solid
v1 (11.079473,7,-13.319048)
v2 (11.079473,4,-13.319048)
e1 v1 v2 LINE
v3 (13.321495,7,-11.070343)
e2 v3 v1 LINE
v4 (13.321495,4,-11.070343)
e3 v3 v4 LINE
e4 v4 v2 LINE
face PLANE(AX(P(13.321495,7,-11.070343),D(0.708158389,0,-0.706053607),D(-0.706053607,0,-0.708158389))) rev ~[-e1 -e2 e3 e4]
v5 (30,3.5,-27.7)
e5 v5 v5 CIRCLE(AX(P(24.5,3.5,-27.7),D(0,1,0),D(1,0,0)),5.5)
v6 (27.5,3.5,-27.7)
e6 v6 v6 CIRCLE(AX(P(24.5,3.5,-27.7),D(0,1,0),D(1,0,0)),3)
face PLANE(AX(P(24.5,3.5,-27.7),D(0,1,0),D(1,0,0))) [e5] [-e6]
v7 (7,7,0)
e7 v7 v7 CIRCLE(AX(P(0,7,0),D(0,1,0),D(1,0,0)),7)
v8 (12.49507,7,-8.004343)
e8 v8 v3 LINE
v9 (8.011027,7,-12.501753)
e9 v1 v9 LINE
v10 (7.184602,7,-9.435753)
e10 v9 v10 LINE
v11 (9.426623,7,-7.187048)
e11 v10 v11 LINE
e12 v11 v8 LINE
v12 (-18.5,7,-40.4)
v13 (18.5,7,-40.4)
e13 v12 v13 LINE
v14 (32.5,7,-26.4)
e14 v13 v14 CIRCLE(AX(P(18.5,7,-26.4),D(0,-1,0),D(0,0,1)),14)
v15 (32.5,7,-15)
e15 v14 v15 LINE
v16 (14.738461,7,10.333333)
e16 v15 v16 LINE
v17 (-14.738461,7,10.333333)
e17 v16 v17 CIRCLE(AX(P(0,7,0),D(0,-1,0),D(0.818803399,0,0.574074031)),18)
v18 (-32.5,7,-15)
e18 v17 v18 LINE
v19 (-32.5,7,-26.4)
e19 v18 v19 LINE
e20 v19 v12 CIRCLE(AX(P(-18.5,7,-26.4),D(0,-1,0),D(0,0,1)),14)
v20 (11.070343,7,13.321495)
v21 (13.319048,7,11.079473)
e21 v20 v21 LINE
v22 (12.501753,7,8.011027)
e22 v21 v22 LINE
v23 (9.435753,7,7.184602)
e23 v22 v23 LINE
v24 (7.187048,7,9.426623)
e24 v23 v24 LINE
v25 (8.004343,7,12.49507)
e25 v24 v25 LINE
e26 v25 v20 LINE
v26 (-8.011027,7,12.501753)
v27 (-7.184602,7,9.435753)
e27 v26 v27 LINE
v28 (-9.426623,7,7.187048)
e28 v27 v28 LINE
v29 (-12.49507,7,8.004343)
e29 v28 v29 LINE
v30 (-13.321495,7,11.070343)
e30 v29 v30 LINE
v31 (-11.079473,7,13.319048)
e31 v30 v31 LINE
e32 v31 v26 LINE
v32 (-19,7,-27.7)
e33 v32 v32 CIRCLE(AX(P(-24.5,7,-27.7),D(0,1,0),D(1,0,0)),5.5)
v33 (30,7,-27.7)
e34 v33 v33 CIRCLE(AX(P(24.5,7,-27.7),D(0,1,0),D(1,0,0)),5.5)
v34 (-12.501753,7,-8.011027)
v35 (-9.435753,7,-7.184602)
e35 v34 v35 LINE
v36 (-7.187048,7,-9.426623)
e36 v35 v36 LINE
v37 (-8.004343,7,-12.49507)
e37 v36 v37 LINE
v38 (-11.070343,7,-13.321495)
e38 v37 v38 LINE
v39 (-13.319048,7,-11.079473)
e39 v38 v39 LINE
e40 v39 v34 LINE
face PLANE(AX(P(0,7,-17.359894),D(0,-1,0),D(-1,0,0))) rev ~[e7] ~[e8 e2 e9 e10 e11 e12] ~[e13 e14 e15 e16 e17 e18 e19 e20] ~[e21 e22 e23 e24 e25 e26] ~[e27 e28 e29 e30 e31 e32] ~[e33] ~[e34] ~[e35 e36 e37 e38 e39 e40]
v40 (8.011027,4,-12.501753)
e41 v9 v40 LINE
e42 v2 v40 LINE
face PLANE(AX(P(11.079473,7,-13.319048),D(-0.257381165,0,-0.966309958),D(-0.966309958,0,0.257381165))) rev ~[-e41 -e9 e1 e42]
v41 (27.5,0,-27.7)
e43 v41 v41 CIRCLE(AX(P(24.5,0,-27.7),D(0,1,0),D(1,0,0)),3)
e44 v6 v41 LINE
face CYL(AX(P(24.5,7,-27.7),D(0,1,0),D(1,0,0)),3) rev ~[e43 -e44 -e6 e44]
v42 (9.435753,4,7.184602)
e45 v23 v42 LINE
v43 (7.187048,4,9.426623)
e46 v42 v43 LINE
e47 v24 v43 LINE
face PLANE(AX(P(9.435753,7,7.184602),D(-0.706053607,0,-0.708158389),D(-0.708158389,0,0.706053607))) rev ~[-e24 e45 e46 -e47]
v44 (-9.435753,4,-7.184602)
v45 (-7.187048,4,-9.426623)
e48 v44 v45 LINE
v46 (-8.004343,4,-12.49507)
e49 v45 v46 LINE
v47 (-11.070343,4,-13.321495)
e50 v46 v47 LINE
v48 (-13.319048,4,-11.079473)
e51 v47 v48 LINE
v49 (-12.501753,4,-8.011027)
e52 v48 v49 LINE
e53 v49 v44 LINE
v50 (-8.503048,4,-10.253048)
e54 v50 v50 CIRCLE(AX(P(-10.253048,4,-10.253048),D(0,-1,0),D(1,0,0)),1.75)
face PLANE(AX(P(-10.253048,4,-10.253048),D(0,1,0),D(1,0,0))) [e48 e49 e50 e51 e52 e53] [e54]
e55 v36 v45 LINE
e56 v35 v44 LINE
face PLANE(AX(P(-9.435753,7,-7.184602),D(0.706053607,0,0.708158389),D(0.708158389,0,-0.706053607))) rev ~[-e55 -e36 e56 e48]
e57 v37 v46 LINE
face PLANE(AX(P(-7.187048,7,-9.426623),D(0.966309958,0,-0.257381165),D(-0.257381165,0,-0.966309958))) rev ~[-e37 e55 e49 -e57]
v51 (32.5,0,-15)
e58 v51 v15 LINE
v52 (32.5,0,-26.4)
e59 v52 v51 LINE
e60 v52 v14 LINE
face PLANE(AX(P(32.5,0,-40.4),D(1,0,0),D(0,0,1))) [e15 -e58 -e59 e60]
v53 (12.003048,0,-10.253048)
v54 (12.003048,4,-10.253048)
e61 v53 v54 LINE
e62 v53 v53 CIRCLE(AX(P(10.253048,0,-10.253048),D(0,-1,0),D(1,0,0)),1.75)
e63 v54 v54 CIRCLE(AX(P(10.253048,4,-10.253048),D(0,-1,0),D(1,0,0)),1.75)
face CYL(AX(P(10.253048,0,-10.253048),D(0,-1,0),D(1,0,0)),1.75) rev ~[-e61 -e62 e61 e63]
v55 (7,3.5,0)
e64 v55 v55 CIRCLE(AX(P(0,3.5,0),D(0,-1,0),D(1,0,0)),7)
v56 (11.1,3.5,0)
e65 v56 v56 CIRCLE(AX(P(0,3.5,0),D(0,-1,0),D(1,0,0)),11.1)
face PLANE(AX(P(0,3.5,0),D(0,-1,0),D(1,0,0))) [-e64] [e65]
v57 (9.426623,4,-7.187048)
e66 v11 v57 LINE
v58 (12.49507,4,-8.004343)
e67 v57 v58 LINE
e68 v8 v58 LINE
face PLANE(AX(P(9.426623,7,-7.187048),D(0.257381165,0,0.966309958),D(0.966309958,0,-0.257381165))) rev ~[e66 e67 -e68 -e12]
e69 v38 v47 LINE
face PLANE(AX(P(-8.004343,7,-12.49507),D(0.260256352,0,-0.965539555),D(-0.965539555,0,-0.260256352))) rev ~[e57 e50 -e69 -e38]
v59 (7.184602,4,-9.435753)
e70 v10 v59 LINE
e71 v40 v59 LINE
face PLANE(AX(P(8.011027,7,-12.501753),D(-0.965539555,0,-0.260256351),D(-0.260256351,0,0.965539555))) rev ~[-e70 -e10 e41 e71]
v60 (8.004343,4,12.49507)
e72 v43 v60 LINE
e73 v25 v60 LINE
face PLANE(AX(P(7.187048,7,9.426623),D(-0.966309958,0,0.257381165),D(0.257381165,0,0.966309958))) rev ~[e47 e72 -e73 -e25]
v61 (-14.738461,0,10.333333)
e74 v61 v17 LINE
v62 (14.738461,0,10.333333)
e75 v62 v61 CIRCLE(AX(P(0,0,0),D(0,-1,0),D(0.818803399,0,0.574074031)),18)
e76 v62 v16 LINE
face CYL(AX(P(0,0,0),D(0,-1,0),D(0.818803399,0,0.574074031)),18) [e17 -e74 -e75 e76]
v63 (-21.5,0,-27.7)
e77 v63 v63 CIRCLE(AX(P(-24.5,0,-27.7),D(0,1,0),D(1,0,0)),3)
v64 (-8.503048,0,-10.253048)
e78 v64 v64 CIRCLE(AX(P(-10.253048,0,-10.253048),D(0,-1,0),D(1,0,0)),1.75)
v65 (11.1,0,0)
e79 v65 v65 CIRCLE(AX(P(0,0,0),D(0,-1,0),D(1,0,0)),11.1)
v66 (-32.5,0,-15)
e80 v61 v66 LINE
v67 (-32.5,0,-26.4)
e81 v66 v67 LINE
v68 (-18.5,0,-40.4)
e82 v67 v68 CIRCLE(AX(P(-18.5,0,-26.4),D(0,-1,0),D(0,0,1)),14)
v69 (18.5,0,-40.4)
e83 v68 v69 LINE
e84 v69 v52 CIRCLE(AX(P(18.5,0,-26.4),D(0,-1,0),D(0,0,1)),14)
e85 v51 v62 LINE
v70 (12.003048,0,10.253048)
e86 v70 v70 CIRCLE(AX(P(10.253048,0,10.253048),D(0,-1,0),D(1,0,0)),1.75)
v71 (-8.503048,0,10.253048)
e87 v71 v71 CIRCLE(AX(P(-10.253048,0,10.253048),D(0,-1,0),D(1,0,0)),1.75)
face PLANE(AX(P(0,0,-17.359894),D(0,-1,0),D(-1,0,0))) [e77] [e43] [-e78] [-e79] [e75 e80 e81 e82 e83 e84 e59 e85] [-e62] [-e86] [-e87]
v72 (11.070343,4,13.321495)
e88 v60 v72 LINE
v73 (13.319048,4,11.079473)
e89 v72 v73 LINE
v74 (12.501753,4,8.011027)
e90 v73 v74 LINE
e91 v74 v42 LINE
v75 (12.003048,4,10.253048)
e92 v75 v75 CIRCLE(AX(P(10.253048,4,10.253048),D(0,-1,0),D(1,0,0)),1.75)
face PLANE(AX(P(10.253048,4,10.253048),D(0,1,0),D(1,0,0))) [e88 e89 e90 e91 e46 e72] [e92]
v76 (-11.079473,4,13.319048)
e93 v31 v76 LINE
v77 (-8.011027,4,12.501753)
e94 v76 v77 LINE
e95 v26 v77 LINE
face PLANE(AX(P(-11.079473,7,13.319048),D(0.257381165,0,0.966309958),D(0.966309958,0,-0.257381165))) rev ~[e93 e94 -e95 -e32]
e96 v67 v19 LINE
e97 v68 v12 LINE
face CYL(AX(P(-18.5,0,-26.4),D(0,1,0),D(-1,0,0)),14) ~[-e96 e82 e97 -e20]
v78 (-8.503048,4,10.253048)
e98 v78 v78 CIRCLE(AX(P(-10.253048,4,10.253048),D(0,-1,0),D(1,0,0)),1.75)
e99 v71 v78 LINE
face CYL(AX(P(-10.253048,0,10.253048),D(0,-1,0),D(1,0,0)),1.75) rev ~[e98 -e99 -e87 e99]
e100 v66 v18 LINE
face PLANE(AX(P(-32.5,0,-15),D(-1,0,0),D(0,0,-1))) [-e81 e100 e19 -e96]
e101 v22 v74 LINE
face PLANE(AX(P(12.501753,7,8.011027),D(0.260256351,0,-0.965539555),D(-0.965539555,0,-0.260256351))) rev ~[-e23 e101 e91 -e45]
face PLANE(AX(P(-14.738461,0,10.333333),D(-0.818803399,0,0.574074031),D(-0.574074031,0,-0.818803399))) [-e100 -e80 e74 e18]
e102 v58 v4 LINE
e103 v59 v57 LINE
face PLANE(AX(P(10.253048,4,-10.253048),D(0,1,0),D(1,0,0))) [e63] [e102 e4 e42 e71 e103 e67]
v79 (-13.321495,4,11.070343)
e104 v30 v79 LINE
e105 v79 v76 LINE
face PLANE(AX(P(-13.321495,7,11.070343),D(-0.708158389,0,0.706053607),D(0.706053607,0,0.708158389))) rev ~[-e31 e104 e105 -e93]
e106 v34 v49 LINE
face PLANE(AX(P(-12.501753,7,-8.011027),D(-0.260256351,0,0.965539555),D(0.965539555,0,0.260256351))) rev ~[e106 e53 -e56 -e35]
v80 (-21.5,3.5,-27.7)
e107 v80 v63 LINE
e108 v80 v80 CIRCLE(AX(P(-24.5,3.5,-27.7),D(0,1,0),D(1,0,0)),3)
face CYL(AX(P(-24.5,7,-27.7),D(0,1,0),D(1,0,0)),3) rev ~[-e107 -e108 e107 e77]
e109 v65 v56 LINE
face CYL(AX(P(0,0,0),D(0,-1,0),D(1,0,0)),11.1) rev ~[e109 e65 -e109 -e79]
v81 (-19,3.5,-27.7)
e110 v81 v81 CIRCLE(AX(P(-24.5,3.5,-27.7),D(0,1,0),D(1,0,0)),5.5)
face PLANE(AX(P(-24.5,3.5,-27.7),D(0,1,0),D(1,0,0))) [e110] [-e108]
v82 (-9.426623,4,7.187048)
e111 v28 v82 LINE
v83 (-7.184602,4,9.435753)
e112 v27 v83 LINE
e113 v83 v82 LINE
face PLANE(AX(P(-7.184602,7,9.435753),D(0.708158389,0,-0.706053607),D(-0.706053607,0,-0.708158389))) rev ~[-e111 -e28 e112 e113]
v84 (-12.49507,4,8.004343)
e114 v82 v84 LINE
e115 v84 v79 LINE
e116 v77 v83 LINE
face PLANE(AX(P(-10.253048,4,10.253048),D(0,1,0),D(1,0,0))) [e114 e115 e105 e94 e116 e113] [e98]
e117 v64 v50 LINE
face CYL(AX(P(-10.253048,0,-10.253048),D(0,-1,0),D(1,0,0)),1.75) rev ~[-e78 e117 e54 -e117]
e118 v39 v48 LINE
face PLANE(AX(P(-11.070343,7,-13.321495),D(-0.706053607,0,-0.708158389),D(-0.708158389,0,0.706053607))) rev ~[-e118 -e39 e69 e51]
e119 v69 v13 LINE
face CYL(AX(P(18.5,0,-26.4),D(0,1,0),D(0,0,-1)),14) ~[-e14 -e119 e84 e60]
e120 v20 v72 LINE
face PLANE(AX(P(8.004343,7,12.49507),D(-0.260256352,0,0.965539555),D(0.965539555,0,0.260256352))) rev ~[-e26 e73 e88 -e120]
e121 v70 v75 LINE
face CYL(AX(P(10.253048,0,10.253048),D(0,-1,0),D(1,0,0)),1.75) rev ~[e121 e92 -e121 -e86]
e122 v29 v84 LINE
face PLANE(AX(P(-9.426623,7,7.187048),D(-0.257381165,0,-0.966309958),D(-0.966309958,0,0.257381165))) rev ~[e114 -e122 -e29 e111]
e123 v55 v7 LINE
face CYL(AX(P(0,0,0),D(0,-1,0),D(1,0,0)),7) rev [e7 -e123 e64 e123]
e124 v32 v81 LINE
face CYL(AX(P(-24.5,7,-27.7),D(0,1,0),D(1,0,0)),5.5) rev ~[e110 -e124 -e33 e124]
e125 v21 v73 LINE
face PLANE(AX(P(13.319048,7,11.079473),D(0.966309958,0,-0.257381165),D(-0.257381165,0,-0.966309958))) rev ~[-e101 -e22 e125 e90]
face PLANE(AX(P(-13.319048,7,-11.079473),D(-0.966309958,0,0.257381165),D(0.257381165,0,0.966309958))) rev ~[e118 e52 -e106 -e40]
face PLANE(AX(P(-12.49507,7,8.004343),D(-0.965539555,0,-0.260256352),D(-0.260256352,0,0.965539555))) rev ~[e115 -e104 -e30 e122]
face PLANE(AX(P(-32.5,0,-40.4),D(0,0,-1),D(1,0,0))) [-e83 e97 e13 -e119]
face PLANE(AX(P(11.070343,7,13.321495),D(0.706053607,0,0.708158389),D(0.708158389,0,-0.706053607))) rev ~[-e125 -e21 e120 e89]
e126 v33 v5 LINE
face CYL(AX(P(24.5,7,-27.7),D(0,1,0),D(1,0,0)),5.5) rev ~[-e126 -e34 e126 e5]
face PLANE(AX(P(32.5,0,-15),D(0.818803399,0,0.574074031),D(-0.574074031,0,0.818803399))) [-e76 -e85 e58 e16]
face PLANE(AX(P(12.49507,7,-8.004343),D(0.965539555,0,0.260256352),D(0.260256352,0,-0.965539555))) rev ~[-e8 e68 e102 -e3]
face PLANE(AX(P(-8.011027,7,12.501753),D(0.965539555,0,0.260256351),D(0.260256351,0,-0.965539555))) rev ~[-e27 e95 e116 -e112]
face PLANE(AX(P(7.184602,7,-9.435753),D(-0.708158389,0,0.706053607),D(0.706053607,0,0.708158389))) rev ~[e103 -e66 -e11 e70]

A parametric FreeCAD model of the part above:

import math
import FreeCAD as App
import Part
import Sketcher

V = App.Vector
Q = App.Units.Quantity


def edges_at(feature, points):
    """Names of the edges that pass closest to the given points."""
    edges = feature.Shape.Edges
    near = lambda p: min(range(len(edges)), key=lambda i: edges[i].distToShape(Part.Vertex(*p))[0])
    return sorted({f"Edge{near(p) + 1}" for p in points})


def add_polygon(sketch, points):
    """Adds a closed chain of lines whose ends are joined by coincident constraints."""
    first, n = sketch.GeometryCount, len(points)
    for a, b in zip(points, points[1:] + points[:1]):
        sketch.addGeometry(Part.LineSegment(App.Vector(*a, 0), App.Vector(*b, 0)), False)
    for i in range(n):
        sketch.addConstraint(Sketcher.Constraint("Coincident", first + i, 2, first + (i + 1) % n, 1))

doc = App.newDocument("Part")
params = doc.addObject("Spreadsheet::Sheet", "Params")
for row, (alias, value) in enumerate([
    ("sketch1_diameter", "14 mm"),
    ("sketch1_radius", "18 mm"),
    ("sketch1_width", "65 mm"),
    ("sketch1_height", "25.4 mm"),
    ("pad1_length", "7 mm"),
    ("sketch2_diameter", "22.2 mm"),
    ("pocket1_length", "3.5 mm"),
    ("sketch3_diameter", "11 mm"),
    ("sketch3_diameter2", "6 mm"),
    ("pocket2_length", "3.5 mm"),
    ("sketch4_diameter", "6 mm"),
    ("sketch5_diameter", "3.5 mm"),
    ("pocket5_length", "3 mm"),
    ("fillet_radius", "14 mm"),
], start=1):
    params.set(f"A{row}", alias)
    params.set(f"B{row}", "=" + value)
    params.setAlias(f"B{row}", alias)

body = doc.addObject("PartDesign::Body", "Body")

# Sketch on XZ plane
sketch1 = body.newObject("Sketcher::SketchObject", "Sketch")
sketch1.AttachmentSupport = (doc.getObject("XZ_Plane"), [""])
sketch1.MapMode = "FlatFace"
sketch1.addGeometry([
    Part.LineSegment(V(-32, -40, 0), V(-32, -15, 0)),  # 0
    Part.LineSegment(V(-32, -15, 0), V(-15, 10, 0)),  # 1
    Part.ArcOfCircle(Part.Circle(V(0, 0, 0), V(0, 0, 1), 18), math.radians(35), math.radians(145)),  # 2
    Part.LineSegment(V(15, 10, 0), V(32, -15, 0)),  # 3
    Part.LineSegment(V(32, -15, 0), V(32, -40, 0)),  # 4
    Part.LineSegment(V(32, -40, 0), V(-32, -40, 0)),  # 5
    Part.Circle(V(0, 0, 0), V(0, 0, 1), 7),  # 6
], False)
sketch1.addConstraint([
    Sketcher.Constraint("Coincident", 0, 2, 1, 1),
    Sketcher.Constraint("Tangent", 1, 2, 2, 2),
    Sketcher.Constraint("Tangent", 2, 1, 3, 1),
    Sketcher.Constraint("Coincident", 3, 2, 4, 1),
    Sketcher.Constraint("Coincident", 4, 2, 5, 1),
    Sketcher.Constraint("Coincident", 5, 2, 0, 1),
    Sketcher.Constraint("Vertical", 0),
    Sketcher.Constraint("Vertical", 4),
    Sketcher.Constraint("Horizontal", 5),
    Sketcher.Constraint("Coincident", 2, 3, -1, 1),
    Sketcher.Constraint("Coincident", 6, 3, -1, 1),
    Sketcher.Constraint("Symmetric", 0, 2, 3, 2, -2),
    Sketcher.Constraint("Diameter", 6, Q("14 mm")),
    Sketcher.Constraint("Radius", 2, Q("18 mm")),
    Sketcher.Constraint("DistanceX", 5, 2, 5, 1, Q("65 mm")),
    Sketcher.Constraint("DistanceY", 0, 1, 0, 2, Q("25.4 mm")),
    Sketcher.Constraint("DistanceY", 0, 2, -1, 1, Q("15 mm")),
])
sketch1.setExpression("Constraints[12]", "Params.sketch1_diameter")
sketch1.setExpression("Constraints[13]", "Params.sketch1_radius")
sketch1.setExpression("Constraints[14]", "Params.sketch1_width")
sketch1.setExpression("Constraints[15]", "Params.sketch1_height")
pad1 = body.newObject("PartDesign::Pad", "Pad")
pad1.Profile = sketch1
pad1.setExpression("Length", "Params.pad1_length")
pad1.Reversed = True

# Sketch on XZ plane
sketch2 = body.newObject("Sketcher::SketchObject", "Sketch001")
sketch2.AttachmentSupport = (doc.getObject("XZ_Plane"), [""])
sketch2.MapMode = "FlatFace"
sketch2.addGeometry(Part.Circle(V(0, 0, 0), V(0, 0, 1), 11), False)
sketch2.addConstraint([
    Sketcher.Constraint("Coincident", 0, 3, -1, 1),
    Sketcher.Constraint("Diameter", 0, Q("22.2 mm")),
])
sketch2.setExpression("Constraints[1]", "Params.sketch2_diameter")
pocket1 = body.newObject("PartDesign::Pocket", "Pocket")
pocket1.Profile = sketch2
pocket1.setExpression("Length", "Params.pocket1_length")

# Sketch on XZ plane
sketch3 = body.newObject("Sketcher::SketchObject", "Sketch002")
sketch3.AttachmentSupport = (doc.getObject("XZ_Plane"), [""])
sketch3.MapMode = "FlatFace"
sketch3.AttachmentOffset = App.Placement(V(0, 0, -7), App.Rotation())
sketch3.addGeometry([
    Part.Circle(V(24.5, -27.7, 0), V(0, 0, 1), 5.5),
    Part.Circle(V(24.5, -27.7, 0), V(0, 0, 1), 3),
    Part.Circle(V(-24.5, -27.7, 0), V(0, 0, 1), 5.5),
    Part.Circle(V(-24.5, -27.7, 0), V(0, 0, 1), 3),
], False)
sketch3.addConstraint([
    Sketcher.Constraint("Coincident", 1, 3, 0, 3),
    Sketcher.Constraint("Coincident", 3, 3, 2, 3),
    Sketcher.Constraint("Equal", 0, 2),
    Sketcher.Constraint("Equal", 1, 3),
    Sketcher.Constraint("Symmetric", 0, 3, 2, 3, -2),
    Sketcher.Constraint("Diameter", 0, Q("11 mm")),
    Sketcher.Constraint("Diameter", 1, Q("6 mm")),
    Sketcher.Constraint("DistanceX", 2, 3, 0, 3, Q("49 mm")),
    Sketcher.Constraint("DistanceY", 0, 3, -1, 1, Q("27.7 mm")),
])
sketch3.setExpression("Constraints[5]", "Params.sketch3_diameter")
sketch3.setExpression("Constraints[6]", "Params.sketch3_diameter2")
pocket2 = body.newObject("PartDesign::Pocket", "Pocket001")
pocket2.Profile = sketch3
pocket2.setExpression("Length", "Params.pocket2_length")
pocket2.Reversed = True

# Sketch on XZ plane
sketch4 = body.newObject("Sketcher::SketchObject", "Sketch003")
sketch4.AttachmentSupport = (doc.getObject("XZ_Plane"), [""])
sketch4.MapMode = "FlatFace"
sketch4.AttachmentOffset = App.Placement(V(0, 0, -7), App.Rotation())
sketch4.addGeometry([
    Part.Circle(V(24.5, -27.7, 0), V(0, 0, 1), 3),
    Part.Circle(V(-24.5, -27.7, 0), V(0, 0, 1), 3),
], False)
sketch4.addConstraint([
    Sketcher.Constraint("Equal", 0, 1),
    Sketcher.Constraint("Symmetric", 0, 3, 1, 3, -2),
    Sketcher.Constraint("Diameter", 0, Q("6 mm")),
    Sketcher.Constraint("DistanceX", 1, 3, 0, 3, Q("49 mm")),
    Sketcher.Constraint("DistanceY", 0, 3, -1, 1, Q("27.7 mm")),
])
sketch4.setExpression("Constraints[2]", "Params.sketch4_diameter")
pocket3 = body.newObject("PartDesign::Pocket", "Pocket002")
pocket3.Profile = sketch4
pocket3.Type = "ThroughAll"
pocket3.Reversed = True

# Sketch on XZ plane
sketch5 = body.newObject("Sketcher::SketchObject", "Sketch004")
sketch5.AttachmentSupport = (doc.getObject("XZ_Plane"), [""])
sketch5.MapMode = "FlatFace"
sketch5.addGeometry([
    Part.Circle(V(10.3, 10.3, 0), V(0, 0, 1), 1.8),
    Part.Circle(V(10.3, -10.3, 0), V(0, 0, 1), 1.8),
    Part.Circle(V(-10.3, -10.3, 0), V(0, 0, 1), 1.8),
    Part.Circle(V(-10.3, 10.3, 0), V(0, 0, 1), 1.8),
], False)
sketch5.addConstraint([
    Sketcher.Constraint("Equal", 0, 1),
    Sketcher.Constraint("Equal", 1, 2),
    Sketcher.Constraint("Equal", 2, 3),
    Sketcher.Constraint("Symmetric", 0, 3, 2, 3, -1, 1),
    Sketcher.Constraint("Symmetric", 1, 3, 3, 3, -1, 1),
    Sketcher.Constraint("Symmetric", 1, 3, 2, 3, -2),
    Sketcher.Constraint("Diameter", 0, Q("3.5 mm")),
    Sketcher.Constraint("DistanceX", -1, 1, 0, 3, Q("10.253048 mm")),
    Sketcher.Constraint("DistanceY", -1, 1, 0, 3, Q("10.253048 mm")),
])
sketch5.setExpression("Constraints[6]", "Params.sketch5_diameter")
pocket4 = body.newObject("PartDesign::Pocket", "Pocket003")
pocket4.Profile = sketch5
pocket4.Type = "ThroughAll"

# Sketch on XZ plane
sketch6 = body.newObject("Sketcher::SketchObject", "Sketch005")
sketch6.AttachmentSupport = (doc.getObject("XZ_Plane"), [""])
sketch6.MapMode = "FlatFace"
sketch6.AttachmentOffset = App.Placement(V(0, 0, -7), App.Rotation())
add_polygon(sketch6, [(13.3, -11.1), (11.1, -13.3), (8, -12.5), (7.2, -9.4), (9.4, -7.2), (12.5, -8)])  # lines 0-5
add_polygon(sketch6, [(-11.1, -13.3), (-13.3, -11.1), (-12.5, -8), (-9.4, -7.2), (-7.2, -9.4), (-8, -12.5)])  # lines 6-11
add_polygon(sketch6, [(11.1, 13.3), (13.3, 11.1), (12.5, 8), (9.4, 7.2), (7.2, 9.4), (8, 12.5)])  # lines 12-17
add_polygon(sketch6, [(-13.3, 11.1), (-11.1, 13.3), (-8, 12.5), (-7.2, 9.4), (-9.4, 7.2), (-12.5, 8)])  # lines 18-23
sketch6.addConstraint([
    Sketcher.Constraint("Symmetric", 6, 2, 12, 2, -1, 1),
    Sketcher.Constraint("Symmetric", 7, 2, 13, 2, -1, 1),
    Sketcher.Constraint("Symmetric", 8, 2, 14, 2, -1, 1),
    Sketcher.Constraint("Symmetric", 9, 2, 15, 2, -1, 1),
    Sketcher.Constraint("Symmetric", 10, 2, 16, 2, -1, 1),
    Sketcher.Constraint("Symmetric", 11, 2, 17, 2, -1, 1),
    Sketcher.Constraint("Symmetric", 0, 2, 18, 2, -1, 1),
    Sketcher.Constraint("Symmetric", 1, 2, 19, 2, -1, 1),
    Sketcher.Constraint("Symmetric", 2, 2, 20, 2, -1, 1),
    Sketcher.Constraint("Symmetric", 3, 2, 21, 2, -1, 1),
    Sketcher.Constraint("Symmetric", 4, 2, 22, 2, -1, 1),
    Sketcher.Constraint("Symmetric", 5, 2, 23, 2, -1, 1),
    Sketcher.Constraint("Parallel", 0, 3),
    Sketcher.Constraint("Parallel", 1, 4),
    Sketcher.Constraint("Parallel", 2, 5),
    Sketcher.Constraint("Perpendicular", 3, 6),
    Sketcher.Constraint("Perpendicular", 4, 7),
    Sketcher.Constraint("Perpendicular", 5, 8),
    Sketcher.Constraint("Parallel", 6, 9),
    Sketcher.Constraint("Parallel", 7, 10),
    Sketcher.Constraint("Parallel", 8, 11),
    Sketcher.Constraint("Equal", 0, 1),
    Sketcher.Constraint("Equal", 1, 2),
    Sketcher.Constraint("Equal", 2, 3),
    Sketcher.Constraint("Equal", 5, 6),
    Sketcher.Constraint("Equal", 6, 7),
    Sketcher.Constraint("Equal", 7, 8),
    Sketcher.Constraint("Equal", 8, 9),
    Sketcher.Constraint("DistanceY", 1, 2, 2, 2, Q("3.066 mm")),
    Sketcher.Constraint("DistanceY", 0, 2, 3, 2, Q("6.132 mm")),
    Sketcher.Constraint("DistanceY", 0, 2, -1, 1, Q("13.319048 mm")),
    Sketcher.Constraint("DistanceX", -1, 1, 4, 2, Q("12.49507 mm")),
    Sketcher.Constraint("DistanceX", 6, 2, -1, 1, Q("13.319048 mm")),
    Sketcher.Constraint("DistanceY", 10, 2, -1, 1, Q("12.49507 mm")),
    Sketcher.Constraint("DistanceX", 2, 2, 0, 2, Q("3.894871 mm")),
    Sketcher.Constraint("DistanceX", 2, 2, 3, 2, Q("2.242021 mm")),
])
pocket5 = body.newObject("PartDesign::Pocket", "Pocket004")
pocket5.Profile = sketch6
pocket5.setExpression("Length", "Params.pocket5_length")
pocket5.Reversed = True
doc.recompute()

fillet = body.newObject("PartDesign::Fillet", "Fillet")
fillet.Base = (pocket5, edges_at(pocket5, [(-32.5, 3.5, -40.4), (32.5, 3.5, -40.4)]))
fillet.setExpression("Radius", "Params.fillet_radius")

doc.recompute()
